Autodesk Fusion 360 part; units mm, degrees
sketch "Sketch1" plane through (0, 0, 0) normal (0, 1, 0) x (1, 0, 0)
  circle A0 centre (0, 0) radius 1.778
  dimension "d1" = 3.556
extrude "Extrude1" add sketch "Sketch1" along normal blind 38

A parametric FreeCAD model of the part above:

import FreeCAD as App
import Part
import Sketcher

V = App.Vector

doc = App.newDocument("Part")
body = doc.addObject("PartDesign::Body", "Body")

sketch1 = doc.addObject("Sketcher::SketchObject", "Sketch")
body.addObject(sketch1)
sketch1.AttachmentSupport = (doc.XZ_Plane, [""])
sketch1.MapMode = "FlatFace"
sketch1.addGeometry(Part.Circle(V(0, 0, 0), V(0, 0, 1), 1.8), False)
sketch1.addConstraint(Sketcher.Constraint("Coincident", 0, 3, -1, 1))
sketch1.addConstraint(Sketcher.Constraint("Diameter", 0, 3.556))
pad1 = doc.addObject("PartDesign::Pad", "Pad")
body.addObject(pad1)
pad1.Profile = sketch1
pad1.Length = 38
pad1.Reversed = True

doc.recompute()
